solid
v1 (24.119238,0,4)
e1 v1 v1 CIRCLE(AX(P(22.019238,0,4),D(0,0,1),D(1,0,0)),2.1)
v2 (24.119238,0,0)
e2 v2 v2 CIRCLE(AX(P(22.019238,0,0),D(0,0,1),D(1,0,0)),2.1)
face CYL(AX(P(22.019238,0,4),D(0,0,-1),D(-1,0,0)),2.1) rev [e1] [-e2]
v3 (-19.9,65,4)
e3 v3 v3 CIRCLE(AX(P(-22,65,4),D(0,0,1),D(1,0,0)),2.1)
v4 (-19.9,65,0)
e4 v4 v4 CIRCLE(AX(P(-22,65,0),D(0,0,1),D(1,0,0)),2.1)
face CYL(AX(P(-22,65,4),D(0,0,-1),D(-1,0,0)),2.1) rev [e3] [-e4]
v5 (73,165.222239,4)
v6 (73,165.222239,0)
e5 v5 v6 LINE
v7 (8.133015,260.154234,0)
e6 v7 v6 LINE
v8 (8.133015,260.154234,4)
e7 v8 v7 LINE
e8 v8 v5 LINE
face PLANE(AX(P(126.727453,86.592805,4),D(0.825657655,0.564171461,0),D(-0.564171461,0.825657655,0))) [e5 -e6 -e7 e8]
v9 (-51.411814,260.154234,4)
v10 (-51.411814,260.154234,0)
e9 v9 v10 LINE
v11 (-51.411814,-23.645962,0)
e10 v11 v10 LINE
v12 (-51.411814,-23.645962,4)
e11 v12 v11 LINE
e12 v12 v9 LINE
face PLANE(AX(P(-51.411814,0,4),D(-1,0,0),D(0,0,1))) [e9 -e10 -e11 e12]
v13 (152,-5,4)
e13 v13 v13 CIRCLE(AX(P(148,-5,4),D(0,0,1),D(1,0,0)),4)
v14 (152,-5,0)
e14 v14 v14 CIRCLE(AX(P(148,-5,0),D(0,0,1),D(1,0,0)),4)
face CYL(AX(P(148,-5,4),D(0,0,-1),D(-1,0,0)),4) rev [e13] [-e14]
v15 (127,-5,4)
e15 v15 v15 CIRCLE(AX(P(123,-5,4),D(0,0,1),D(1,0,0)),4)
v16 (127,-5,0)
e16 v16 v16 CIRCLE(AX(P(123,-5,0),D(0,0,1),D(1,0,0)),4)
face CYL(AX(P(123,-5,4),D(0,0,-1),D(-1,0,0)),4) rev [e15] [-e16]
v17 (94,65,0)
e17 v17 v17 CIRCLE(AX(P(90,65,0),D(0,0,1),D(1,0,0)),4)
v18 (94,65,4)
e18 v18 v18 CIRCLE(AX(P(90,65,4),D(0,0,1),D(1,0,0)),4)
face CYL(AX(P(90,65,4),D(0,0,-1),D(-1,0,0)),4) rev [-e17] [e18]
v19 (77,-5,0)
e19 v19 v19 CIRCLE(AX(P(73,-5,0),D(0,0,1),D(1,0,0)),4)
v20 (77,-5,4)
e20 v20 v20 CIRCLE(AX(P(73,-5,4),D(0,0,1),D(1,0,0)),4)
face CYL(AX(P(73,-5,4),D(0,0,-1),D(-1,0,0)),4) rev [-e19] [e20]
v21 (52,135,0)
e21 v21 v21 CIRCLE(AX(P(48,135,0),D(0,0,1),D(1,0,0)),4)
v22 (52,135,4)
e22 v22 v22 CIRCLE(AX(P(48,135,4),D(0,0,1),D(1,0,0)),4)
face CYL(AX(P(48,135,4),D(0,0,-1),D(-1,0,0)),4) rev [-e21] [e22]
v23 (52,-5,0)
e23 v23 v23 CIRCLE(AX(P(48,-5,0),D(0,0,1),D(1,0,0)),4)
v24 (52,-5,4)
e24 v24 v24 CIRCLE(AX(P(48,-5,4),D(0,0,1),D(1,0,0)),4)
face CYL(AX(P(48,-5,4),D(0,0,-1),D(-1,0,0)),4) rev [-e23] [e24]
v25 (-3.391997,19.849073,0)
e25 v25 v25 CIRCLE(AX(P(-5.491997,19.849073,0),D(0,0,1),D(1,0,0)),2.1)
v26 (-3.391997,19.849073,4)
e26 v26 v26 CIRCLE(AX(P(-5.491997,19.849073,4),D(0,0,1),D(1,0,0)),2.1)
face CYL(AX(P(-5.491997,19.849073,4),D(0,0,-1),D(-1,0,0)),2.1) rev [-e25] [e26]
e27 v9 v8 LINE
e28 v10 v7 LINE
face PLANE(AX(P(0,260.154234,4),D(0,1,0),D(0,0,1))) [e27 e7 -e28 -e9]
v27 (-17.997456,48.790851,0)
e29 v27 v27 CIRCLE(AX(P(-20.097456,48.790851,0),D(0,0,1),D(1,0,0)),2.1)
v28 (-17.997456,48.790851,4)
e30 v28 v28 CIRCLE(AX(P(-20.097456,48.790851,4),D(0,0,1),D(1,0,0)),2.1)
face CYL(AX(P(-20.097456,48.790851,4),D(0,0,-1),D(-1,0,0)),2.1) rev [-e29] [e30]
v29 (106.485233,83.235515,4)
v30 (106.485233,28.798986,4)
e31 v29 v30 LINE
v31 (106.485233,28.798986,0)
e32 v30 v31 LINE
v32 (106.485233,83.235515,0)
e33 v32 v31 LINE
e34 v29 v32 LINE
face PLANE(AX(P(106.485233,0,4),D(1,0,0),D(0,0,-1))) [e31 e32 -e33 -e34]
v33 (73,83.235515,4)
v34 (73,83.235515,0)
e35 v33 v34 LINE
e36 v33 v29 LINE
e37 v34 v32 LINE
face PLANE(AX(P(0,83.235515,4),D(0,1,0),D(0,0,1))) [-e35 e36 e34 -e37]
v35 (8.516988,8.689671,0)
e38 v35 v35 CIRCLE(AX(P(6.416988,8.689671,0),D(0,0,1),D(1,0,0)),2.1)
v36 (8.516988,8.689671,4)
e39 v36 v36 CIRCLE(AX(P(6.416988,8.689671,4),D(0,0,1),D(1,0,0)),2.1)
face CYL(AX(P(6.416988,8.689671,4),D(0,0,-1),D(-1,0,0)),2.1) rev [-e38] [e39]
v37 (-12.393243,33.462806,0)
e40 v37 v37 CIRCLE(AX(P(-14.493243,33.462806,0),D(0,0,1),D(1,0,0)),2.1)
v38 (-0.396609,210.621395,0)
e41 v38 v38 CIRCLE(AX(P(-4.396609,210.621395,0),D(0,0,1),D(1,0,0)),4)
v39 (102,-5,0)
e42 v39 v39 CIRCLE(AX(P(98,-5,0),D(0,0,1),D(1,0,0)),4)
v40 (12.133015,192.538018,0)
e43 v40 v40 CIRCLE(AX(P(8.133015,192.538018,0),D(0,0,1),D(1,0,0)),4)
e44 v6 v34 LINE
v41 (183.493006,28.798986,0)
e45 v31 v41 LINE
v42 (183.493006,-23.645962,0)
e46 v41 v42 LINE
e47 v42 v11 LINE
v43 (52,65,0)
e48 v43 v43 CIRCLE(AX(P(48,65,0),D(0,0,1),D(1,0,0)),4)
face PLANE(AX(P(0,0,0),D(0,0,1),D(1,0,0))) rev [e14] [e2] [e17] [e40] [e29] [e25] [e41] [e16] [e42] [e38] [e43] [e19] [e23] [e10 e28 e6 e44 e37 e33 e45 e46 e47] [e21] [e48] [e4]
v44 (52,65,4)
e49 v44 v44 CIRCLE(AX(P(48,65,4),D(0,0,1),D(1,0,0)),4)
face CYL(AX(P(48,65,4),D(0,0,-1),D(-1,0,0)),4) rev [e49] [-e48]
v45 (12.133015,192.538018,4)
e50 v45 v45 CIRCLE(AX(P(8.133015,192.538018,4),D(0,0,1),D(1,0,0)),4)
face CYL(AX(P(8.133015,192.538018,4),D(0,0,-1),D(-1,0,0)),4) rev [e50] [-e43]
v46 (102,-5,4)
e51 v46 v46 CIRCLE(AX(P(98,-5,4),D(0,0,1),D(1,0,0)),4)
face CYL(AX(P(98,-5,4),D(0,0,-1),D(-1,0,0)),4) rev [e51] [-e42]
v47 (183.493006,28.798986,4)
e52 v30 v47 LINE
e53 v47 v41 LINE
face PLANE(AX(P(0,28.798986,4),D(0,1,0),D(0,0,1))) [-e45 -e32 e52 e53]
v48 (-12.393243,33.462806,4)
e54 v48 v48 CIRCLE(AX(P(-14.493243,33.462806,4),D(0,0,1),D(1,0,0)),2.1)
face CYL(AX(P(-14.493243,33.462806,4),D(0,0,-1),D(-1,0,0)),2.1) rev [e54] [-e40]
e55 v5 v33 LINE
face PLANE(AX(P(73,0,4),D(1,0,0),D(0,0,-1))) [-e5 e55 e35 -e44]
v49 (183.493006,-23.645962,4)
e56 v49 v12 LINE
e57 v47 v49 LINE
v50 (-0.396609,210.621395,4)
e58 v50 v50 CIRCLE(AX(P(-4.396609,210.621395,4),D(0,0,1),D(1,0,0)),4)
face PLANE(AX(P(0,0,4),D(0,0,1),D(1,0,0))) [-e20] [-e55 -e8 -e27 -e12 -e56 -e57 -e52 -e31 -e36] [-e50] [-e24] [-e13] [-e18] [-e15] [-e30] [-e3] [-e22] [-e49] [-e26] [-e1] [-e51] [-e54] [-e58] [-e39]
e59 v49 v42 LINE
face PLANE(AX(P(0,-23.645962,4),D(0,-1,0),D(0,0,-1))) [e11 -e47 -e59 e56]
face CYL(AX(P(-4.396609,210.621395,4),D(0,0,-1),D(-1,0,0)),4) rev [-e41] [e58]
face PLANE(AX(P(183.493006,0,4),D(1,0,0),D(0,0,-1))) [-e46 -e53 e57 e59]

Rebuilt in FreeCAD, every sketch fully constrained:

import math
import FreeCAD as App
import Part
import Sketcher

V = App.Vector

doc = App.newDocument("Part")
body = doc.addObject("PartDesign::Body", "Body")

sketch1 = body.newObject("Sketcher::SketchObject", "Sketch")
sketch1.AttachmentSupport = (doc.getObject("XY_Plane"), [""])
sketch1.MapMode = "FlatFace"
sketch1.addGeometry(Part.LineSegment(V(-51.4, -23.6, 0), V(183.5, -23.6, 0)), False)
sketch1.addGeometry(Part.LineSegment(V(183.5, -23.6, 0), V(183.5, 28.8, 0)), False)
sketch1.addGeometry(Part.LineSegment(V(183.5, 28.8, 0), V(106.5, 28.8, 0)), False)
sketch1.addGeometry(Part.LineSegment(V(106.5, 28.8, 0), V(106.5, 83.2, 0)), False)
sketch1.addGeometry(Part.LineSegment(V(106.5, 83.2, 0), V(73, 83.2, 0)), False)
sketch1.addGeometry(Part.LineSegment(V(73, 83.2, 0), V(73, 165.2, 0)), False)
sketch1.addGeometry(Part.LineSegment(V(73, 165.2, 0), V(8.1, 260.2, 0)), False)
sketch1.addGeometry(Part.LineSegment(V(8.1, 260.2, 0), V(-51.4, 260.2, 0)), False)
sketch1.addGeometry(Part.LineSegment(V(-51.4, 260.2, 0), V(-51.4, -23.6, 0)), False)
sketch1.addGeometry(Part.Circle(V(6.4, 8.7, 0), V(0, 0, 1), 2.1), False)
sketch1.addGeometry(Part.Circle(V(-5.5, 19.8, 0), V(0, 0, 1), 2.1), False)
sketch1.addGeometry(Part.Circle(V(-14.5, 33.5, 0), V(0, 0, 1), 2.1), False)
sketch1.addGeometry(Part.ArcOfCircle(Part.Circle(V(22, 0, 0), V(0, 0, 1), 2.1), math.radians(0), math.radians(339)), False)
sketch1.addGeometry(Part.LineSegment(V(24.1, 0, 0), V(22, 0, 0)), False)
sketch1.addGeometry(Part.ArcOfCircle(Part.Circle(V(48, 65, 0), V(0, 0, 1), 70), math.radians(-111.79), math.radians(-110.07)), False)
sketch1.addGeometry(Part.LineSegment(V(48, -5, 0), V(52, -5, 0)), False)
sketch1.addGeometry(Part.ArcOfCircle(Part.Circle(V(48, -5, 0), V(0, 0, 1), 4), math.radians(178), math.radians(360)), False)
sketch1.addGeometry(Part.ArcOfCircle(Part.Circle(V(48, 65, 0), V(0, 0, 1), 70), math.radians(-93.27), math.radians(-90)), False)
sketch1.addGeometry(Part.Circle(V(-20.1, 48.8, 0), V(0, 0, 1), 2.1), False)
sketch1.addGeometry(Part.Circle(V(-22, 65, 0), V(0, 0, 1), 2.1), False)
sketch1.addGeometry(Part.Circle(V(48, 65, 0), V(0, 0, 1), 4), False)
sketch1.addGeometry(Part.LineSegment(V(69, -5, 0), V(77, -5, 0)), False)
sketch1.addGeometry(Part.ArcOfCircle(Part.Circle(V(73, -5, 0), V(0, 0, 1), 4), math.radians(180), math.radians(360)), False)
sketch1.addGeometry(Part.LineSegment(V(94, -5, 0), V(102, -5, 0)), False)
sketch1.addGeometry(Part.ArcOfCircle(Part.Circle(V(98, -5, 0), V(0, 0, 1), 4), math.radians(180), math.radians(360)), False)
sketch1.addGeometry(Part.LineSegment(V(119, -5, 0), V(127, -5, 0)), False)
sketch1.addGeometry(Part.ArcOfCircle(Part.Circle(V(123, -5, 0), V(0, 0, 1), 4), math.radians(180), math.radians(360)), False)
sketch1.addGeometry(Part.Circle(V(148, -5, 0), V(0, 0, 1), 4), False)
sketch1.addGeometry(Part.Circle(V(90, 65, 0), V(0, 0, 1), 4), False)
sketch1.addGeometry(Part.Circle(V(48, 135, 0), V(0, 0, 1), 4), False)
sketch1.addGeometry(Part.ArcOfCircle(Part.Circle(V(-4.4, 210.6, 0), V(0, 0, 1), 4), math.radians(-55), math.radians(125)), False)
sketch1.addGeometry(Part.ArcOfCircle(Part.Circle(V(-4.4, 210.6, 0), V(0, 0, 1), 4), math.radians(125), math.radians(305)), False)
sketch1.addGeometry(Part.Circle(V(8.1, 192.5, 0), V(0, 0, 1), 4), False)
sketch1.addConstraint(Sketcher.Constraint("Coincident", 0, 2, 1, 1))
sketch1.addConstraint(Sketcher.Constraint("Coincident", 1, 2, 2, 1))
sketch1.addConstraint(Sketcher.Constraint("Coincident", 2, 2, 3, 1))
sketch1.addConstraint(Sketcher.Constraint("Coincident", 3, 2, 4, 1))
sketch1.addConstraint(Sketcher.Constraint("Coincident", 4, 2, 5, 1))
sketch1.addConstraint(Sketcher.Constraint("Coincident", 5, 2, 6, 1))
sketch1.addConstraint(Sketcher.Constraint("Coincident", 6, 2, 7, 1))
sketch1.addConstraint(Sketcher.Constraint("Coincident", 7, 2, 8, 1))
sketch1.addConstraint(Sketcher.Constraint("Coincident", 8, 2, 0, 1))
sketch1.addConstraint(Sketcher.Constraint("Coincident", 12, 1, 13, 1))
sketch1.addConstraint(Sketcher.Constraint("Coincident", 13, 2, 14, 1))
sketch1.addConstraint(Sketcher.Constraint("Coincident", 14, 2, 12, 2))
sketch1.addConstraint(Sketcher.Constraint("Coincident", 15, 2, 16, 2))
sketch1.addConstraint(Sketcher.Constraint("Coincident", 16, 1, 17, 1))
sketch1.addConstraint(Sketcher.Constraint("Tangent", 17, 2, 15, 1))
sketch1.addConstraint(Sketcher.Constraint("Coincident", 21, 1, 22, 1))
sketch1.addConstraint(Sketcher.Constraint("Coincident", 22, 2, 21, 2))
sketch1.addConstraint(Sketcher.Constraint("Coincident", 23, 1, 24, 1))
sketch1.addConstraint(Sketcher.Constraint("Coincident", 24, 2, 23, 2))
sketch1.addConstraint(Sketcher.Constraint("Coincident", 25, 1, 26, 1))
sketch1.addConstraint(Sketcher.Constraint("Coincident", 26, 2, 25, 2))
sketch1.addConstraint(Sketcher.Constraint("Tangent", 30, 1, 31, 2))
sketch1.addConstraint(Sketcher.Constraint("Coincident", 31, 1, 30, 2))
sketch1.addConstraint(Sketcher.Constraint("Horizontal", 0))
sketch1.addConstraint(Sketcher.Constraint("Vertical", 1))
sketch1.addConstraint(Sketcher.Constraint("Horizontal", 2))
sketch1.addConstraint(Sketcher.Constraint("Vertical", 3))
sketch1.addConstraint(Sketcher.Constraint("Horizontal", 4))
sketch1.addConstraint(Sketcher.Constraint("Vertical", 5))
sketch1.addConstraint(Sketcher.Constraint("Horizontal", 7))
sketch1.addConstraint(Sketcher.Constraint("Vertical", 8))
sketch1.addConstraint(Sketcher.Constraint("Horizontal", 13))
sketch1.addConstraint(Sketcher.Constraint("Horizontal", 15))
sketch1.addConstraint(Sketcher.Constraint("Horizontal", 21))
sketch1.addConstraint(Sketcher.Constraint("Horizontal", 23))
sketch1.addConstraint(Sketcher.Constraint("Horizontal", 25))
sketch1.addConstraint(Sketcher.Constraint("Coincident", 17, 3, 14, 3))
sketch1.addConstraint(Sketcher.Constraint("Coincident", 20, 3, 14, 3))
sketch1.addConstraint(Sketcher.Constraint("Coincident", 13, 2, 12, 3))
sketch1.addConstraint(Sketcher.Constraint("Coincident", 17, 2, 16, 3))
sketch1.addConstraint(Sketcher.Constraint("Equal", 9, 10))
sketch1.addConstraint(Sketcher.Constraint("Equal", 10, 11))
sketch1.addConstraint(Sketcher.Constraint("Equal", 11, 12))
sketch1.addConstraint(Sketcher.Constraint("Equal", 12, 18))
sketch1.addConstraint(Sketcher.Constraint("Equal", 18, 19))
sketch1.addConstraint(Sketcher.Constraint("Equal", 16, 20))
sketch1.addConstraint(Sketcher.Constraint("Equal", 20, 22))
sketch1.addConstraint(Sketcher.Constraint("Equal", 22, 24))
sketch1.addConstraint(Sketcher.Constraint("Equal", 24, 26))
sketch1.addConstraint(Sketcher.Constraint("Equal", 26, 27))
sketch1.addConstraint(Sketcher.Constraint("Equal", 27, 28))
sketch1.addConstraint(Sketcher.Constraint("Equal", 28, 29))
sketch1.addConstraint(Sketcher.Constraint("Equal", 29, 30))
sketch1.addConstraint(Sketcher.Constraint("Equal", 31, 32))
sketch1.addConstraint(Sketcher.Constraint("PointOnObject", 12, 3, -1))
sketch1.addConstraint(Sketcher.Constraint("Horizontal", 17, 3, 19, 3))
sketch1.addConstraint(Sketcher.Constraint("Horizontal", 16, 3, 22, 3))
sketch1.addConstraint(Sketcher.Constraint("Horizontal", 22, 3, 24, 3))
sketch1.addConstraint(Sketcher.Constraint("Horizontal", 24, 3, 26, 3))
sketch1.addConstraint(Sketcher.Constraint("Horizontal", 26, 3, 27, 3))
sketch1.addConstraint(Sketcher.Constraint("Horizontal", 20, 3, 28, 3))
sketch1.addConstraint(Sketcher.Constraint("Horizontal", 17, 2, 21, 1))
sketch1.addConstraint(Sketcher.Constraint("Horizontal", 22, 2, 23, 1))
sketch1.addConstraint(Sketcher.Constraint("Horizontal", 24, 2, 25, 1))
sketch1.addConstraint(Sketcher.Constraint("Vertical", 20, 3, 29, 3))
sketch1.addConstraint(Sketcher.Constraint("Vertical", 22, 3, 4, 2))
sketch1.addConstraint(Sketcher.Constraint("Vertical", 32, 3, 6, 2))
sketch1.addConstraint(Sketcher.Constraint("Diameter", 20, 8.0))
sketch1.addConstraint(Sketcher.Constraint("Radius", 17, 70.000001))
sketch1.addConstraint(Sketcher.Constraint("Diameter", 9, 4.2))
sketch1.addConstraint(Sketcher.Constraint("DistanceX", -1, 1, 14, 3, 48.000001))
sketch1.addConstraint(Sketcher.Constraint("DistanceY", 16, 3, -1, 1, 5.0))
sketch1.addConstraint(Sketcher.Constraint("DistanceX", 19, 3, -1, 1, 22.0))
sketch1.addConstraint(Sketcher.Constraint("DistanceX", -1, 1, 22, 3, 73.0))
sketch1.addConstraint(Sketcher.Constraint("DistanceX", -1, 1, 24, 3, 98.0))
sketch1.addConstraint(Sketcher.Constraint("DistanceX", -1, 1, 26, 3, 123.0))
sketch1.addConstraint(Sketcher.Constraint("DistanceX", -1, 1, 27, 3, 148.0))
sketch1.addConstraint(Sketcher.Constraint("DistanceX", -1, 1, 28, 3, 90.0))
sketch1.addConstraint(Sketcher.Constraint("DistanceY", -1, 1, 29, 3, 135.0))
sketch1.addConstraint(Sketcher.Constraint("Radius", 14, 70.000003))
sketch1.addConstraint(Sketcher.Constraint("DistanceX", 10, 3, 14, 3, 53.491998))
sketch1.addConstraint(Sketcher.Constraint("DistanceX", 0, 1, 0, 2, 234.90482))
sketch1.addConstraint(Sketcher.Constraint("DistanceX", 7, 2, 7, 1, 59.544829))
sketch1.addConstraint(Sketcher.Constraint("DistanceY", 1, 1, 1, 2, 52.444948))
sketch1.addConstraint(Sketcher.Constraint("DistanceY", 3, 1, 3, 2, 54.436529))
sketch1.addConstraint(Sketcher.Constraint("DistanceY", 9, 3, 10, 3, 11.159401))
sketch1.addConstraint(Sketcher.Constraint("Distance", 6, 114.97743))
sketch1.addConstraint(Sketcher.Constraint("DistanceX", 2, 2, 2, 1, 77.007772))
sketch1.addConstraint(Sketcher.Constraint("DistanceX", 4, 2, 4, 1, 33.485233))
sketch1.addConstraint(Sketcher.Constraint("DistanceY", 5, 1, 5, 2, 81.986723))
sketch1.addConstraint(Sketcher.Constraint("DistanceX", -1, 1, 9, 3, 6.416988))
sketch1.addConstraint(Sketcher.Constraint("DistanceY", -1, 1, 9, 3, 8.689671))
sketch1.addConstraint(Sketcher.Constraint("DistanceY", -1, 1, 18, 3, 48.790851))
sketch1.addConstraint(Sketcher.Constraint("DistanceX", 30, 3, -1, 1, 4.396609))
sketch1.addConstraint(Sketcher.Constraint("DistanceY", -1, 1, 32, 3, 192.538018))
sketch1.addConstraint(Sketcher.Constraint("DistanceY", 0, 2, -1, 1, 23.645962))
sketch1.addConstraint(Sketcher.Constraint("DistanceY", -1, 1, 30, 1, 207.333508))
sketch1.addConstraint(Sketcher.Constraint("DistanceX", 31, 1, -1, 1, 6.674722))
sketch1.addConstraint(Sketcher.Constraint("DistanceY", -1, 1, 31, 1, 213.909282))
sketch1.addConstraint(Sketcher.Constraint("DistanceX", 11, 3, 9, 3, 20.910231))
sketch1.addConstraint(Sketcher.Constraint("DistanceX", 18, 3, 10, 3, 14.605459))
sketch1.addConstraint(Sketcher.Constraint("DistanceY", 8, 2, 11, 3, 57.108768))
pad1 = body.newObject("PartDesign::Pad", "Pad")
pad1.Profile = sketch1
pad1.Length = 4

sketch2 = body.newObject("Sketcher::SketchObject", "Sketch001")
sketch2.AttachmentSupport = (doc.getObject("XY_Plane"), [""])
sketch2.MapMode = "FlatFace"
sketch2.addGeometry(Part.Circle(V(6.4, 8.7, 0), V(0, 0, 1), 2.1), False)
sketch2.addGeometry(Part.Circle(V(-22, 65, 0), V(0, 0, 1), 2.1), False)
sketch2.addGeometry(Part.Circle(V(-14.5, 33.5, 0), V(0, 0, 1), 2.1), False)
sketch2.addGeometry(Part.Circle(V(22, 0, 0), V(0, 0, 1), 2.1), False)
sketch2.addGeometry(Part.Circle(V(-20.1, 48.8, 0), V(0, 0, 1), 2.1), False)
sketch2.addGeometry(Part.Circle(V(-5.5, 19.8, 0), V(0, 0, 1), 2.1), False)
sketch2.addGeometry(Part.Circle(V(48, -5, 0), V(0, 0, 1), 4), False)
sketch2.addGeometry(Part.Circle(V(148, -5, 0), V(0, 0, 1), 4), False)
sketch2.addGeometry(Part.Circle(V(98, -5, 0), V(0, 0, 1), 4), False)
sketch2.addGeometry(Part.Circle(V(73, -5, 0), V(0, 0, 1), 4), False)
sketch2.addGeometry(Part.Circle(V(123, -5, 0), V(0, 0, 1), 4), False)
sketch2.addConstraint(Sketcher.Constraint("Equal", 0, 1))
sketch2.addConstraint(Sketcher.Constraint("Equal", 1, 2))
sketch2.addConstraint(Sketcher.Constraint("Equal", 2, 3))
sketch2.addConstraint(Sketcher.Constraint("Equal", 3, 4))
sketch2.addConstraint(Sketcher.Constraint("Equal", 4, 5))
sketch2.addConstraint(Sketcher.Constraint("Equal", 6, 7))
sketch2.addConstraint(Sketcher.Constraint("Equal", 7, 8))
sketch2.addConstraint(Sketcher.Constraint("Equal", 8, 9))
sketch2.addConstraint(Sketcher.Constraint("Equal", 9, 10))
sketch2.addConstraint(Sketcher.Constraint("PointOnObject", 3, 3, -1))
sketch2.addConstraint(Sketcher.Constraint("Horizontal", 6, 3, 7, 3))
sketch2.addConstraint(Sketcher.Constraint("Horizontal", 7, 3, 8, 3))
sketch2.addConstraint(Sketcher.Constraint("Horizontal", 8, 3, 9, 3))
sketch2.addConstraint(Sketcher.Constraint("Horizontal", 9, 3, 10, 3))
sketch2.addConstraint(Sketcher.Constraint("Diameter", 6, 8.0))
sketch2.addConstraint(Sketcher.Constraint("Diameter", 0, 4.2))
sketch2.addConstraint(Sketcher.Constraint("DistanceX", 1, 3, -1, 1, 22.0))
sketch2.addConstraint(Sketcher.Constraint("DistanceY", -1, 1, 1, 3, 65.0))
sketch2.addConstraint(Sketcher.Constraint("DistanceX", -1, 1, 6, 3, 48.0))
sketch2.addConstraint(Sketcher.Constraint("DistanceY", 6, 3, -1, 1, 5.0))
sketch2.addConstraint(Sketcher.Constraint("DistanceX", -1, 1, 7, 3, 148.0))
sketch2.addConstraint(Sketcher.Constraint("DistanceX", -1, 1, 8, 3, 98.0))
sketch2.addConstraint(Sketcher.Constraint("DistanceX", -1, 1, 9, 3, 73.0))
sketch2.addConstraint(Sketcher.Constraint("DistanceX", -1, 1, 10, 3, 123.0))
sketch2.addConstraint(Sketcher.Constraint("DistanceY", 0, 3, 5, 3, 11.159401))
sketch2.addConstraint(Sketcher.Constraint("DistanceX", -1, 1, 0, 3, 6.416988))
sketch2.addConstraint(Sketcher.Constraint("DistanceY", -1, 1, 0, 3, 8.689671))
sketch2.addConstraint(Sketcher.Constraint("DistanceY", -1, 1, 4, 3, 48.790851))
sketch2.addConstraint(Sketcher.Constraint("DistanceX", 2, 3, 0, 3, 20.910231))
sketch2.addConstraint(Sketcher.Constraint("DistanceX", 0, 3, 3, 3, 15.60225))
sketch2.addConstraint(Sketcher.Constraint("DistanceX", 4, 3, 5, 3, 14.605459))
sketch2.addConstraint(Sketcher.Constraint("DistanceY", -1, 1, 2, 3, 33.462806))
sketch2.addConstraint(Sketcher.Constraint("DistanceX", 4, 3, -1, 1, 20.097456))
pocket1 = body.newObject("PartDesign::Pocket", "Pocket")
pocket1.Profile = sketch2
pocket1.Length = 30
pocket1.Midplane = True

doc.recompute()
